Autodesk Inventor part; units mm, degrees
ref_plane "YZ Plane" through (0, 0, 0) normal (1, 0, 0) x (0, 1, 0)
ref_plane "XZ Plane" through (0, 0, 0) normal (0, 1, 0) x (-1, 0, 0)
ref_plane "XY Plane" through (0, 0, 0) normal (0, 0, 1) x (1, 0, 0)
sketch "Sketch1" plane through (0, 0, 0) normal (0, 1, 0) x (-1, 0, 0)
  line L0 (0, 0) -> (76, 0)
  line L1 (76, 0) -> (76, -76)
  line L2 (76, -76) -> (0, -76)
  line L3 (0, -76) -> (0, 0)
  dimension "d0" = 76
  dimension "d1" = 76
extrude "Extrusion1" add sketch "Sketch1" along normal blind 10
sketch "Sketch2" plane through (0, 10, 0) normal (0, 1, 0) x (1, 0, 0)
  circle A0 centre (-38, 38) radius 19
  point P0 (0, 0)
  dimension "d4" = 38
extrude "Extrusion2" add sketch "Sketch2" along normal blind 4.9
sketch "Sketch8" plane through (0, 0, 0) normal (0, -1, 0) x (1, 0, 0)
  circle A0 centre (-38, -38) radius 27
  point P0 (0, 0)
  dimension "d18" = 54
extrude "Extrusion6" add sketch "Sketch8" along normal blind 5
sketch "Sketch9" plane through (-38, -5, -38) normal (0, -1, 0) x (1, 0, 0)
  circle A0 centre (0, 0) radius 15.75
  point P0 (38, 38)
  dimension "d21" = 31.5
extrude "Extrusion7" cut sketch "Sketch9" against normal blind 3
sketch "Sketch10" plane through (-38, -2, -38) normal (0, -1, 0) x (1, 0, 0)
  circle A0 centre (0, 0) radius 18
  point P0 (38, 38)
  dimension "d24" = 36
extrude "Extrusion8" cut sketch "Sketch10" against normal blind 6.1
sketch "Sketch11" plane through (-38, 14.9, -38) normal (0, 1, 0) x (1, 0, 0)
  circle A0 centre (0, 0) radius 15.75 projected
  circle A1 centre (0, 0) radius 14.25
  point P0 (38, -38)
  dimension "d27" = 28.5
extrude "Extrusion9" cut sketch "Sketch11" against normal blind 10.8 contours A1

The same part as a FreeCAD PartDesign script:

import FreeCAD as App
import Part
import Sketcher
Q = App.Units.Quantity

doc = App.newDocument("Part")
params = doc.addObject("Spreadsheet::Sheet", "Params")
for row, (alias, value) in enumerate([
    ("sketch1_width", "76 mm"),
    ("pad1_length", "10 mm"),
    ("sketch2_diameter", "38 mm"),
    ("pad2_length", "4.9 mm"),
    ("sketch3_diameter", "54 mm"),
    ("pad3_length", "5 mm"),
    ("sketch4_diameter", "31.5 mm"),
    ("pocket1_length", "3 mm"),
    ("sketch5_diameter", "36 mm"),
    ("pocket2_length", "6.1 mm"),
    ("sketch6_diameter", "28.5 mm"),
    ("pocket3_length", "10.8 mm"),
], start=1):
    params.set(f"A{row}", alias)
    params.set(f"B{row}", "=" + value)
    params.setAlias(f"B{row}", alias)

body = doc.addObject("PartDesign::Body", "Body")

sketch1 = doc.addObject("Sketcher::SketchObject", "Sketch")
body.addObject(sketch1)
sketch1.AttachmentSupport = (doc.XZ_Plane, [""])
sketch1.MapMode = "FlatFace"
sketch1.addGeometry(Part.LineSegment(App.Vector(-76, 0, 0), App.Vector(0, 0, 0)), False)
sketch1.addGeometry(Part.LineSegment(App.Vector(0, 0, 0), App.Vector(0, -76, 0)), False)
sketch1.addGeometry(Part.LineSegment(App.Vector(0, -76, 0), App.Vector(-76, -76, 0)), False)
sketch1.addGeometry(Part.LineSegment(App.Vector(-76, -76, 0), App.Vector(-76, 0, 0)), False)
sketch1.addConstraint(Sketcher.Constraint("Coincident", 0, 2, 1, 1))
sketch1.addConstraint(Sketcher.Constraint("Coincident", 1, 2, 2, 1))
sketch1.addConstraint(Sketcher.Constraint("Coincident", 2, 2, 3, 1))
sketch1.addConstraint(Sketcher.Constraint("Coincident", 3, 2, 0, 1))
sketch1.addConstraint(Sketcher.Constraint("Horizontal", 0))
sketch1.addConstraint(Sketcher.Constraint("Vertical", 1))
sketch1.addConstraint(Sketcher.Constraint("Horizontal", 2))
sketch1.addConstraint(Sketcher.Constraint("Vertical", 3))
sketch1.addConstraint(Sketcher.Constraint("Coincident", 0, 2, -1, 1))
sketch1.addConstraint(Sketcher.Constraint("Equal", 2, 1))
sketch1.addConstraint(Sketcher.Constraint("DistanceX", 0, 1, 0, 2, Q("76 mm")))
sketch1.setExpression("Constraints[10]", "Params.sketch1_width")
pad1 = doc.addObject("PartDesign::Pad", "Pad")
body.addObject(pad1)
pad1.Profile = sketch1
pad1.setExpression("Length", "Params.pad1_length")
pad1.Reversed = True

sketch2 = doc.addObject("Sketcher::SketchObject", "Sketch001")
body.addObject(sketch2)
sketch2.AttachmentSupport = (doc.XZ_Plane, [""])
sketch2.MapMode = "FlatFace"
sketch2.AttachmentOffset = App.Placement(App.Vector(0, 0, -10), App.Rotation())
sketch2.addGeometry(Part.Circle(App.Vector(-38, -38, 0), App.Vector(0, 0, 1), 19), False)
sketch2.addConstraint(Sketcher.Constraint("Diameter", 0, Q("38 mm")))
sketch2.addConstraint(Sketcher.Constraint("DistanceX", 0, 3, -1, 1, Q("38 mm")))
sketch2.addConstraint(Sketcher.Constraint("DistanceY", 0, 3, -1, 1, Q("38 mm")))
sketch2.setExpression("Constraints[0]", "Params.sketch2_diameter")
pad2 = doc.addObject("PartDesign::Pad", "Pad001")
body.addObject(pad2)
pad2.Profile = sketch2
pad2.setExpression("Length", "Params.pad2_length")
pad2.Reversed = True

sketch3 = doc.addObject("Sketcher::SketchObject", "Sketch002")
body.addObject(sketch3)
sketch3.AttachmentSupport = (doc.XZ_Plane, [""])
sketch3.MapMode = "FlatFace"
sketch3.addGeometry(Part.Circle(App.Vector(-38, -38, 0), App.Vector(0, 0, 1), 27), False)
sketch3.addConstraint(Sketcher.Constraint("Diameter", 0, Q("54 mm")))
sketch3.addConstraint(Sketcher.Constraint("DistanceX", 0, 3, -1, 1, Q("38 mm")))
sketch3.addConstraint(Sketcher.Constraint("DistanceY", 0, 3, -1, 1, Q("38 mm")))
sketch3.setExpression("Constraints[0]", "Params.sketch3_diameter")
pad3 = doc.addObject("PartDesign::Pad", "Pad002")
body.addObject(pad3)
pad3.Profile = sketch3
pad3.setExpression("Length", "Params.pad3_length")

sketch4 = doc.addObject("Sketcher::SketchObject", "Sketch003")
body.addObject(sketch4)
sketch4.AttachmentSupport = (doc.XZ_Plane, [""])
sketch4.MapMode = "FlatFace"
sketch4.AttachmentOffset = App.Placement(App.Vector(0, 0, 5), App.Rotation())
sketch4.addGeometry(Part.Circle(App.Vector(-38, -38, 0), App.Vector(0, 0, 1), 16), False)
sketch4.addConstraint(Sketcher.Constraint("Diameter", 0, Q("31.5 mm")))
sketch4.addConstraint(Sketcher.Constraint("DistanceX", 0, 3, -1, 1, Q("38 mm")))
sketch4.addConstraint(Sketcher.Constraint("DistanceY", 0, 3, -1, 1, Q("38 mm")))
sketch4.setExpression("Constraints[0]", "Params.sketch4_diameter")
pocket1 = doc.addObject("PartDesign::Pocket", "Pocket")
body.addObject(pocket1)
pocket1.Profile = sketch4
pocket1.setExpression("Length", "Params.pocket1_length")

sketch5 = doc.addObject("Sketcher::SketchObject", "Sketch004")
body.addObject(sketch5)
sketch5.AttachmentSupport = (doc.XZ_Plane, [""])
sketch5.MapMode = "FlatFace"
sketch5.AttachmentOffset = App.Placement(App.Vector(0, 0, 2), App.Rotation())
sketch5.addGeometry(Part.Circle(App.Vector(-38, -38, 0), App.Vector(0, 0, 1), 18), False)
sketch5.addConstraint(Sketcher.Constraint("Diameter", 0, Q("36 mm")))
sketch5.addConstraint(Sketcher.Constraint("DistanceX", 0, 3, -1, 1, Q("38 mm")))
sketch5.addConstraint(Sketcher.Constraint("DistanceY", 0, 3, -1, 1, Q("38 mm")))
sketch5.setExpression("Constraints[0]", "Params.sketch5_diameter")
pocket2 = doc.addObject("PartDesign::Pocket", "Pocket001")
body.addObject(pocket2)
pocket2.Profile = sketch5
pocket2.setExpression("Length", "Params.pocket2_length")

sketch6 = doc.addObject("Sketcher::SketchObject", "Sketch005")
body.addObject(sketch6)
sketch6.AttachmentSupport = (doc.XZ_Plane, [""])
sketch6.MapMode = "FlatFace"
sketch6.AttachmentOffset = App.Placement(App.Vector(0, 0, -14.9), App.Rotation())
sketch6.addGeometry(Part.Circle(App.Vector(-38, -38, 0), App.Vector(0, 0, 1), 14), False)
sketch6.addConstraint(Sketcher.Constraint("Diameter", 0, Q("28.5 mm")))
sketch6.addConstraint(Sketcher.Constraint("DistanceX", 0, 3, -1, 1, Q("38 mm")))
sketch6.addConstraint(Sketcher.Constraint("DistanceY", 0, 3, -1, 1, Q("38 mm")))
sketch6.setExpression("Constraints[0]", "Params.sketch6_diameter")
pocket3 = doc.addObject("PartDesign::Pocket", "Pocket002")
body.addObject(pocket3)
pocket3.Profile = sketch6
pocket3.setExpression("Length", "Params.pocket3_length")
pocket3.Reversed = True

doc.recompute()
